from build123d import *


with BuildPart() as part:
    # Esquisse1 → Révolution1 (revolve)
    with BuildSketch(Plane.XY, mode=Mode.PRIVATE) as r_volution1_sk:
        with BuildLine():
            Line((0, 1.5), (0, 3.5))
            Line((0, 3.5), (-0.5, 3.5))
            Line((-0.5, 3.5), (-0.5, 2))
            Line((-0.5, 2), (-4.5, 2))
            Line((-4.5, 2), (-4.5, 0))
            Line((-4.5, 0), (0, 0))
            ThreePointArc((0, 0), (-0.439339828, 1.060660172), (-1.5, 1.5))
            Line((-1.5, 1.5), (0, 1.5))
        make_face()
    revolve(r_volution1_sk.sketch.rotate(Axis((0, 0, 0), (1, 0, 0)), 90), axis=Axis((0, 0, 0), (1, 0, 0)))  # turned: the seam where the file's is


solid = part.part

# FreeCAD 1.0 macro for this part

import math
import FreeCAD as App
import Part
import Sketcher
Q = App.Units.Quantity

doc = App.newDocument("Part")
body = doc.addObject("PartDesign::Body", "Body")

sketch1 = body.newObject("Sketcher::SketchObject", "Sketch")
sketch1.AttachmentSupport = (doc.getObject("XY_Plane"), [""])
sketch1.MapMode = "FlatFace"
sketch1.addGeometry(Part.LineSegment(App.Vector(0, 1.5, 0), App.Vector(0, 3.5, 0)), False)
sketch1.addGeometry(Part.LineSegment(App.Vector(0, 3.5, 0), App.Vector(-0.5, 3.5, 0)), False)
sketch1.addGeometry(Part.LineSegment(App.Vector(-0.5, 3.5, 0), App.Vector(-0.5, 2, 0)), False)
sketch1.addGeometry(Part.LineSegment(App.Vector(-0.5, 2, 0), App.Vector(-4.5, 2, 0)), False)
sketch1.addGeometry(Part.LineSegment(App.Vector(-4.5, 2, 0), App.Vector(-4.5, 0, 0)), False)
sketch1.addGeometry(Part.LineSegment(App.Vector(-4.5, 0, 0), App.Vector(0, 0, 0)), False)
sketch1.addGeometry(Part.ArcOfCircle(Part.Circle(App.Vector(-1.5, 0, 0), App.Vector(0, 0, 1), 1.5), math.radians(0), math.radians(90)), False)
sketch1.addGeometry(Part.LineSegment(App.Vector(-1.5, 1.5, 0), App.Vector(0, 1.5, 0)), False)
sketch1.addConstraint(Sketcher.Constraint("Coincident", 0, 2, 1, 1))
sketch1.addConstraint(Sketcher.Constraint("Coincident", 1, 2, 2, 1))
sketch1.addConstraint(Sketcher.Constraint("Coincident", 2, 2, 3, 1))
sketch1.addConstraint(Sketcher.Constraint("Coincident", 3, 2, 4, 1))
sketch1.addConstraint(Sketcher.Constraint("Coincident", 4, 2, 5, 1))
sketch1.addConstraint(Sketcher.Constraint("Coincident", 5, 2, 6, 1))
sketch1.addConstraint(Sketcher.Constraint("Tangent", 6, 2, 7, 1))
sketch1.addConstraint(Sketcher.Constraint("Coincident", 7, 2, 0, 1))
sketch1.addConstraint(Sketcher.Constraint("Vertical", 0))
sketch1.addConstraint(Sketcher.Constraint("Horizontal", 1))
sketch1.addConstraint(Sketcher.Constraint("Vertical", 2))
sketch1.addConstraint(Sketcher.Constraint("Horizontal", 3))
sketch1.addConstraint(Sketcher.Constraint("Vertical", 4))
sketch1.addConstraint(Sketcher.Constraint("Horizontal", 5))
sketch1.addConstraint(Sketcher.Constraint("Horizontal", 7))
sketch1.addConstraint(Sketcher.Constraint("Coincident", 5, 2, -1, 1))
sketch1.addConstraint(Sketcher.Constraint("PointOnObject", 6, 3, -1))
sketch1.addConstraint(Sketcher.Constraint("PointOnObject", 0, 2, -2))
sketch1.addConstraint(Sketcher.Constraint("Equal", 7, 2))
sketch1.addConstraint(Sketcher.Constraint("Radius", 6, Q("1.5 mm")))
sketch1.addConstraint(Sketcher.Constraint("DistanceX", 3, 2, 3, 1, Q("4 mm")))
sketch1.addConstraint(Sketcher.Constraint("DistanceY", 0, 1, 0, 2, Q("2 mm")))
sketch1.addConstraint(Sketcher.Constraint("DistanceX", 1, 2, 1, 1, Q("0.5 mm")))
revolution = body.newObject("PartDesign::Revolution", "Revolution")
revolution.Profile = sketch1
revolution.ReferenceAxis = (sketch1, ["H_Axis"])
revolution.Angle = 360

doc.recompute()
